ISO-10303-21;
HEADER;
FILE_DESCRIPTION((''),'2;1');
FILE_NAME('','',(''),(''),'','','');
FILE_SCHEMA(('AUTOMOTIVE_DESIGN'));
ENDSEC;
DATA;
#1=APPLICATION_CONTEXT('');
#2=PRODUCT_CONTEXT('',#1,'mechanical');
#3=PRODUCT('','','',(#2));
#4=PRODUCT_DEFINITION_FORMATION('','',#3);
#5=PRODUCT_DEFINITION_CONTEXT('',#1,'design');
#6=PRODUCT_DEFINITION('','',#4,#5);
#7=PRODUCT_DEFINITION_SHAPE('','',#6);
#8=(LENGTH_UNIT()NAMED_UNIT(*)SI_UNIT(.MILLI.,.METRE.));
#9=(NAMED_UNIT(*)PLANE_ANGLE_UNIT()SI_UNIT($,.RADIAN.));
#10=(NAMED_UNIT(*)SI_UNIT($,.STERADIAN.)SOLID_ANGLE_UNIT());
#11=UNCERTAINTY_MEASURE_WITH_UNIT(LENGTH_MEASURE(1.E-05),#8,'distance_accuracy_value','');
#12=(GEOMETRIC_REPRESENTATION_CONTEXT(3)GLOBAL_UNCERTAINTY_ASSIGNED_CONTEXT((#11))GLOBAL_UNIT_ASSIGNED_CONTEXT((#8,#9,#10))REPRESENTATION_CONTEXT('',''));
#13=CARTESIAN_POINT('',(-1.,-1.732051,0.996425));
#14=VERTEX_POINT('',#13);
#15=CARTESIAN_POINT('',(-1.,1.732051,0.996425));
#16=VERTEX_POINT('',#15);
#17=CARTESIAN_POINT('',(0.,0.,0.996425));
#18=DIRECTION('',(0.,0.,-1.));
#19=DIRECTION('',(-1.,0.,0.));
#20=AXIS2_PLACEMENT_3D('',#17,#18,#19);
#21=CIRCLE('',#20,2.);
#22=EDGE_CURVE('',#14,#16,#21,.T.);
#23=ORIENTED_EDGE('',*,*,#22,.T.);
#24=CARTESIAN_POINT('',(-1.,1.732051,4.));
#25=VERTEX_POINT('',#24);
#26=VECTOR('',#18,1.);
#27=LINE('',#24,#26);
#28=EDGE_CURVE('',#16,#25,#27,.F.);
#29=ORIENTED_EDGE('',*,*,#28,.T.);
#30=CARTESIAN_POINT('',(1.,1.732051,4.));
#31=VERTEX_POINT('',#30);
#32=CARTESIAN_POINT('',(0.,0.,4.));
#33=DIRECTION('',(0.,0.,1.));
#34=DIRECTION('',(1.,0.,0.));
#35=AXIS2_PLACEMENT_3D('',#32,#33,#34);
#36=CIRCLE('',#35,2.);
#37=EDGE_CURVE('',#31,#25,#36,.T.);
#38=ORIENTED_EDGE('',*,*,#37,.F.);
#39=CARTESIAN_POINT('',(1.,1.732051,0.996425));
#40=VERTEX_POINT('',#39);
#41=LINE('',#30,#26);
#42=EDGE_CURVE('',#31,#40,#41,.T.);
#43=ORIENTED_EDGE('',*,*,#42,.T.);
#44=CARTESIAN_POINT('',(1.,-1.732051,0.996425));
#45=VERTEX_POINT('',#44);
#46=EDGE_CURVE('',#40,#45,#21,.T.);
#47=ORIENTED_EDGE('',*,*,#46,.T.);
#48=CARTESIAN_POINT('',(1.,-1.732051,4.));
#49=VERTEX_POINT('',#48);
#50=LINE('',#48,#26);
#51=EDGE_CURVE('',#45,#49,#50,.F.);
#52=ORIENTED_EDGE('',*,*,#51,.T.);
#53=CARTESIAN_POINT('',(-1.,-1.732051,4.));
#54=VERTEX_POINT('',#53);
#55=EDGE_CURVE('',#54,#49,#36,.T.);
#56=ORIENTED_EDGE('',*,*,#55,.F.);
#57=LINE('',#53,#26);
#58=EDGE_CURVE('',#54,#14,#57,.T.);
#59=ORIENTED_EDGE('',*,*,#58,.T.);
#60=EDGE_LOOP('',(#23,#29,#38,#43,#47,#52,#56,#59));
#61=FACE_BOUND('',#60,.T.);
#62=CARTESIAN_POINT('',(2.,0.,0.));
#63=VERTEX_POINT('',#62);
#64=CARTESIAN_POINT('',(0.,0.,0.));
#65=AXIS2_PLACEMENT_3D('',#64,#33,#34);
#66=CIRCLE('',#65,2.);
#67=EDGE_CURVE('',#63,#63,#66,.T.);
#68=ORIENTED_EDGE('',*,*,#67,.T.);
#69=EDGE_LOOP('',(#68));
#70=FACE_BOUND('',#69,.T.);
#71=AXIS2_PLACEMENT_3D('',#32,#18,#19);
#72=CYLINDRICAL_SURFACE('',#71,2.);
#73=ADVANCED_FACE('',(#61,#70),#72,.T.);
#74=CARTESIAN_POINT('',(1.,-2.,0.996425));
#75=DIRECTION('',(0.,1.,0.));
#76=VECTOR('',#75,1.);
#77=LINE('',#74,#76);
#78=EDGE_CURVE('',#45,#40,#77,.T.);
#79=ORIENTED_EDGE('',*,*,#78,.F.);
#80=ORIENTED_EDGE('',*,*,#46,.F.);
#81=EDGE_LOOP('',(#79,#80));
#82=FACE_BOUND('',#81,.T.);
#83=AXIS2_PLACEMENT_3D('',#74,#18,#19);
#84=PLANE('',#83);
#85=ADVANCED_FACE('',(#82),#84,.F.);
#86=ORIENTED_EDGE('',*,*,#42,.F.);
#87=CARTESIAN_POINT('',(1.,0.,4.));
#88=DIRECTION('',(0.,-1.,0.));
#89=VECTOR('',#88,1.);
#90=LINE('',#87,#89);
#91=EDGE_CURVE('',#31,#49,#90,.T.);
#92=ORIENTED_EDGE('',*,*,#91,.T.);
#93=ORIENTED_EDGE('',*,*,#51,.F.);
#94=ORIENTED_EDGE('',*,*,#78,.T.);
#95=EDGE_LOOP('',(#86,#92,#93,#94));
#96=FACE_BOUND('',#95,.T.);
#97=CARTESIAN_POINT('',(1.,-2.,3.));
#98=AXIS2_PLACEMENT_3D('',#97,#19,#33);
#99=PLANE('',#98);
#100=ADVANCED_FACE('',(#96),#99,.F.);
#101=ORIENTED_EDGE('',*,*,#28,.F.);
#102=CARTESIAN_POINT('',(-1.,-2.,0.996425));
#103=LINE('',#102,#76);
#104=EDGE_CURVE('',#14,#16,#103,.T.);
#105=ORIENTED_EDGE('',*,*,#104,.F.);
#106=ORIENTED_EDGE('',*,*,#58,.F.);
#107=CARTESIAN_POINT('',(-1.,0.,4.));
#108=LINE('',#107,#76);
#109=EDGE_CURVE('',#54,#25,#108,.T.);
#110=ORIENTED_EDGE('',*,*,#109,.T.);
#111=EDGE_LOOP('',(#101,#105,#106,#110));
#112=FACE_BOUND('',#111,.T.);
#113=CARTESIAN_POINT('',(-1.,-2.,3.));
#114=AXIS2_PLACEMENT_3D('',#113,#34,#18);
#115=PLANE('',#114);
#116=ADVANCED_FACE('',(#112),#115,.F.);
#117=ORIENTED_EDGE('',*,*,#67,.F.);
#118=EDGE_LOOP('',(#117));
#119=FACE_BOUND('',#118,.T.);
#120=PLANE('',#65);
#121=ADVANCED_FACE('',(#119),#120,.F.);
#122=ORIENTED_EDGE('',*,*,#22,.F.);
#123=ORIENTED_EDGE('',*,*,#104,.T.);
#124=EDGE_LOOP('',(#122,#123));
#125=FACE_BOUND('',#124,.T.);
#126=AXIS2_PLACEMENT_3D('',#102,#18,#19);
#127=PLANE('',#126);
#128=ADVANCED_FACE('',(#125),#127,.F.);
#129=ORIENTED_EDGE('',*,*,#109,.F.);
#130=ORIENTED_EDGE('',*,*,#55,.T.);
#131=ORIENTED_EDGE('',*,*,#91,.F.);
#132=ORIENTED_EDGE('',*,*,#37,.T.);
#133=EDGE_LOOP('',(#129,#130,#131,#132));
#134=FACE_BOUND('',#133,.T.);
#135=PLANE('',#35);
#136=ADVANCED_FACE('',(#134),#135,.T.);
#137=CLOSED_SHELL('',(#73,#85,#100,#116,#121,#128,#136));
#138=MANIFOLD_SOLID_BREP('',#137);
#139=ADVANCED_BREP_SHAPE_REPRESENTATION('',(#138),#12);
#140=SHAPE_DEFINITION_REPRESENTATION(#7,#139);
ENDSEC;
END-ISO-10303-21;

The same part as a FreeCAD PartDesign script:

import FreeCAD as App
import Part
import Sketcher

doc = App.newDocument("Part")
params = doc.addObject("Spreadsheet::Sheet", "Params")
for row, (alias, value) in enumerate([
    ("sketch1_diameter", "4 mm"),
    ("pad1_length", "4 mm"),
    ("sketch2_width", "1 mm"),
    ("sketch2_width2", "2 mm"),
    ("pocket1_length", "4 mm"),
], start=1):
    params.set(f"A{row}", alias)
    params.set(f"B{row}", "=" + value)
    params.setAlias(f"B{row}", alias)

body = doc.addObject("PartDesign::Body", "Body")

# Sketch on XY plane
sketch1 = body.newObject("Sketcher::SketchObject", "Sketch")
sketch1.AttachmentSupport = (doc.getObject("XY_Plane"), [""])
sketch1.MapMode = "FlatFace"
sketch1.addGeometry(Part.Circle(App.Vector(0, 0, 0), App.Vector(0, 0, 1), 2), False)
sketch1.addConstraint([
    Sketcher.Constraint("Coincident", 0, 3, -1, 1),
    Sketcher.Constraint("Diameter", 0, 4.0),
])
sketch1.setExpression("Constraints[1]", "Params.sketch1_diameter")
pad1 = body.newObject("PartDesign::Pad", "Pad")
pad1.Profile = sketch1
pad1.setExpression("Length", "Params.pad1_length")

# Sketch on XZ plane
sketch2 = body.newObject("Sketcher::SketchObject", "Sketch001")
sketch2.AttachmentSupport = (doc.getObject("XZ_Plane"), [""])
sketch2.MapMode = "FlatFace"
sketch2.addGeometry([
    Part.LineSegment(App.Vector(2, 5, 0), App.Vector(2, 0.996425, 0)),  # 0
    Part.LineSegment(App.Vector(2, 0.996425, 0), App.Vector(1, 0.996425, 0)),  # 1
    Part.LineSegment(App.Vector(1, 0.996425, 0), App.Vector(1, 4, 0)),  # 2
    Part.LineSegment(App.Vector(1, 4, 0), App.Vector(-1, 4, 0)),  # 3
    Part.LineSegment(App.Vector(-1, 4, 0), App.Vector(-1, 0.996425, 0)),  # 4
    Part.LineSegment(App.Vector(-1, 0.996425, 0), App.Vector(-2, 0.996425, 0)),  # 5
    Part.LineSegment(App.Vector(-2, 0.996425, 0), App.Vector(-2, 5, 0)),  # 6
    Part.LineSegment(App.Vector(-2, 5, 0), App.Vector(2, 5, 0)),  # 7
], False)
sketch2.addConstraint([
    Sketcher.Constraint("Coincident", 0, 2, 1, 1),
    Sketcher.Constraint("Coincident", 1, 2, 2, 1),
    Sketcher.Constraint("Coincident", 2, 2, 3, 1),
    Sketcher.Constraint("Coincident", 3, 2, 4, 1),
    Sketcher.Constraint("Coincident", 4, 2, 5, 1),
    Sketcher.Constraint("Coincident", 5, 2, 6, 1),
    Sketcher.Constraint("Coincident", 6, 2, 7, 1),
    Sketcher.Constraint("Coincident", 7, 2, 0, 1),
    Sketcher.Constraint("Vertical", 0),
    Sketcher.Constraint("Horizontal", 1),
    Sketcher.Constraint("Vertical", 2),
    Sketcher.Constraint("Horizontal", 3),
    Sketcher.Constraint("Vertical", 4),
    Sketcher.Constraint("Horizontal", 5),
    Sketcher.Constraint("Vertical", 6),
    Sketcher.Constraint("Horizontal", 7),
    Sketcher.Constraint("Symmetric", 1, 2, 4, 2, -2),
    Sketcher.Constraint("Equal", 1, 5),
    Sketcher.Constraint("DistanceX", 1, 2, 1, 1, 1.0),
    Sketcher.Constraint("DistanceX", 3, 2, 3, 1, 2.0),
    Sketcher.Constraint("DistanceY", -1, 1, 2, 2, 4.0),
    Sketcher.Constraint("DistanceY", -1, 1, 6, 2, 5.0),
    Sketcher.Constraint("DistanceY", 0, 2, 0, 1, 4.003575),
])
sketch2.setExpression("Constraints[18]", "Params.sketch2_width")
sketch2.setExpression("Constraints[19]", "Params.sketch2_width2")
pocket1 = body.newObject("PartDesign::Pocket", "Pocket")
pocket1.Profile = sketch2
pocket1.setExpression("Length", "Params.pocket1_length")
pocket1.Midplane = True

doc.recompute()
